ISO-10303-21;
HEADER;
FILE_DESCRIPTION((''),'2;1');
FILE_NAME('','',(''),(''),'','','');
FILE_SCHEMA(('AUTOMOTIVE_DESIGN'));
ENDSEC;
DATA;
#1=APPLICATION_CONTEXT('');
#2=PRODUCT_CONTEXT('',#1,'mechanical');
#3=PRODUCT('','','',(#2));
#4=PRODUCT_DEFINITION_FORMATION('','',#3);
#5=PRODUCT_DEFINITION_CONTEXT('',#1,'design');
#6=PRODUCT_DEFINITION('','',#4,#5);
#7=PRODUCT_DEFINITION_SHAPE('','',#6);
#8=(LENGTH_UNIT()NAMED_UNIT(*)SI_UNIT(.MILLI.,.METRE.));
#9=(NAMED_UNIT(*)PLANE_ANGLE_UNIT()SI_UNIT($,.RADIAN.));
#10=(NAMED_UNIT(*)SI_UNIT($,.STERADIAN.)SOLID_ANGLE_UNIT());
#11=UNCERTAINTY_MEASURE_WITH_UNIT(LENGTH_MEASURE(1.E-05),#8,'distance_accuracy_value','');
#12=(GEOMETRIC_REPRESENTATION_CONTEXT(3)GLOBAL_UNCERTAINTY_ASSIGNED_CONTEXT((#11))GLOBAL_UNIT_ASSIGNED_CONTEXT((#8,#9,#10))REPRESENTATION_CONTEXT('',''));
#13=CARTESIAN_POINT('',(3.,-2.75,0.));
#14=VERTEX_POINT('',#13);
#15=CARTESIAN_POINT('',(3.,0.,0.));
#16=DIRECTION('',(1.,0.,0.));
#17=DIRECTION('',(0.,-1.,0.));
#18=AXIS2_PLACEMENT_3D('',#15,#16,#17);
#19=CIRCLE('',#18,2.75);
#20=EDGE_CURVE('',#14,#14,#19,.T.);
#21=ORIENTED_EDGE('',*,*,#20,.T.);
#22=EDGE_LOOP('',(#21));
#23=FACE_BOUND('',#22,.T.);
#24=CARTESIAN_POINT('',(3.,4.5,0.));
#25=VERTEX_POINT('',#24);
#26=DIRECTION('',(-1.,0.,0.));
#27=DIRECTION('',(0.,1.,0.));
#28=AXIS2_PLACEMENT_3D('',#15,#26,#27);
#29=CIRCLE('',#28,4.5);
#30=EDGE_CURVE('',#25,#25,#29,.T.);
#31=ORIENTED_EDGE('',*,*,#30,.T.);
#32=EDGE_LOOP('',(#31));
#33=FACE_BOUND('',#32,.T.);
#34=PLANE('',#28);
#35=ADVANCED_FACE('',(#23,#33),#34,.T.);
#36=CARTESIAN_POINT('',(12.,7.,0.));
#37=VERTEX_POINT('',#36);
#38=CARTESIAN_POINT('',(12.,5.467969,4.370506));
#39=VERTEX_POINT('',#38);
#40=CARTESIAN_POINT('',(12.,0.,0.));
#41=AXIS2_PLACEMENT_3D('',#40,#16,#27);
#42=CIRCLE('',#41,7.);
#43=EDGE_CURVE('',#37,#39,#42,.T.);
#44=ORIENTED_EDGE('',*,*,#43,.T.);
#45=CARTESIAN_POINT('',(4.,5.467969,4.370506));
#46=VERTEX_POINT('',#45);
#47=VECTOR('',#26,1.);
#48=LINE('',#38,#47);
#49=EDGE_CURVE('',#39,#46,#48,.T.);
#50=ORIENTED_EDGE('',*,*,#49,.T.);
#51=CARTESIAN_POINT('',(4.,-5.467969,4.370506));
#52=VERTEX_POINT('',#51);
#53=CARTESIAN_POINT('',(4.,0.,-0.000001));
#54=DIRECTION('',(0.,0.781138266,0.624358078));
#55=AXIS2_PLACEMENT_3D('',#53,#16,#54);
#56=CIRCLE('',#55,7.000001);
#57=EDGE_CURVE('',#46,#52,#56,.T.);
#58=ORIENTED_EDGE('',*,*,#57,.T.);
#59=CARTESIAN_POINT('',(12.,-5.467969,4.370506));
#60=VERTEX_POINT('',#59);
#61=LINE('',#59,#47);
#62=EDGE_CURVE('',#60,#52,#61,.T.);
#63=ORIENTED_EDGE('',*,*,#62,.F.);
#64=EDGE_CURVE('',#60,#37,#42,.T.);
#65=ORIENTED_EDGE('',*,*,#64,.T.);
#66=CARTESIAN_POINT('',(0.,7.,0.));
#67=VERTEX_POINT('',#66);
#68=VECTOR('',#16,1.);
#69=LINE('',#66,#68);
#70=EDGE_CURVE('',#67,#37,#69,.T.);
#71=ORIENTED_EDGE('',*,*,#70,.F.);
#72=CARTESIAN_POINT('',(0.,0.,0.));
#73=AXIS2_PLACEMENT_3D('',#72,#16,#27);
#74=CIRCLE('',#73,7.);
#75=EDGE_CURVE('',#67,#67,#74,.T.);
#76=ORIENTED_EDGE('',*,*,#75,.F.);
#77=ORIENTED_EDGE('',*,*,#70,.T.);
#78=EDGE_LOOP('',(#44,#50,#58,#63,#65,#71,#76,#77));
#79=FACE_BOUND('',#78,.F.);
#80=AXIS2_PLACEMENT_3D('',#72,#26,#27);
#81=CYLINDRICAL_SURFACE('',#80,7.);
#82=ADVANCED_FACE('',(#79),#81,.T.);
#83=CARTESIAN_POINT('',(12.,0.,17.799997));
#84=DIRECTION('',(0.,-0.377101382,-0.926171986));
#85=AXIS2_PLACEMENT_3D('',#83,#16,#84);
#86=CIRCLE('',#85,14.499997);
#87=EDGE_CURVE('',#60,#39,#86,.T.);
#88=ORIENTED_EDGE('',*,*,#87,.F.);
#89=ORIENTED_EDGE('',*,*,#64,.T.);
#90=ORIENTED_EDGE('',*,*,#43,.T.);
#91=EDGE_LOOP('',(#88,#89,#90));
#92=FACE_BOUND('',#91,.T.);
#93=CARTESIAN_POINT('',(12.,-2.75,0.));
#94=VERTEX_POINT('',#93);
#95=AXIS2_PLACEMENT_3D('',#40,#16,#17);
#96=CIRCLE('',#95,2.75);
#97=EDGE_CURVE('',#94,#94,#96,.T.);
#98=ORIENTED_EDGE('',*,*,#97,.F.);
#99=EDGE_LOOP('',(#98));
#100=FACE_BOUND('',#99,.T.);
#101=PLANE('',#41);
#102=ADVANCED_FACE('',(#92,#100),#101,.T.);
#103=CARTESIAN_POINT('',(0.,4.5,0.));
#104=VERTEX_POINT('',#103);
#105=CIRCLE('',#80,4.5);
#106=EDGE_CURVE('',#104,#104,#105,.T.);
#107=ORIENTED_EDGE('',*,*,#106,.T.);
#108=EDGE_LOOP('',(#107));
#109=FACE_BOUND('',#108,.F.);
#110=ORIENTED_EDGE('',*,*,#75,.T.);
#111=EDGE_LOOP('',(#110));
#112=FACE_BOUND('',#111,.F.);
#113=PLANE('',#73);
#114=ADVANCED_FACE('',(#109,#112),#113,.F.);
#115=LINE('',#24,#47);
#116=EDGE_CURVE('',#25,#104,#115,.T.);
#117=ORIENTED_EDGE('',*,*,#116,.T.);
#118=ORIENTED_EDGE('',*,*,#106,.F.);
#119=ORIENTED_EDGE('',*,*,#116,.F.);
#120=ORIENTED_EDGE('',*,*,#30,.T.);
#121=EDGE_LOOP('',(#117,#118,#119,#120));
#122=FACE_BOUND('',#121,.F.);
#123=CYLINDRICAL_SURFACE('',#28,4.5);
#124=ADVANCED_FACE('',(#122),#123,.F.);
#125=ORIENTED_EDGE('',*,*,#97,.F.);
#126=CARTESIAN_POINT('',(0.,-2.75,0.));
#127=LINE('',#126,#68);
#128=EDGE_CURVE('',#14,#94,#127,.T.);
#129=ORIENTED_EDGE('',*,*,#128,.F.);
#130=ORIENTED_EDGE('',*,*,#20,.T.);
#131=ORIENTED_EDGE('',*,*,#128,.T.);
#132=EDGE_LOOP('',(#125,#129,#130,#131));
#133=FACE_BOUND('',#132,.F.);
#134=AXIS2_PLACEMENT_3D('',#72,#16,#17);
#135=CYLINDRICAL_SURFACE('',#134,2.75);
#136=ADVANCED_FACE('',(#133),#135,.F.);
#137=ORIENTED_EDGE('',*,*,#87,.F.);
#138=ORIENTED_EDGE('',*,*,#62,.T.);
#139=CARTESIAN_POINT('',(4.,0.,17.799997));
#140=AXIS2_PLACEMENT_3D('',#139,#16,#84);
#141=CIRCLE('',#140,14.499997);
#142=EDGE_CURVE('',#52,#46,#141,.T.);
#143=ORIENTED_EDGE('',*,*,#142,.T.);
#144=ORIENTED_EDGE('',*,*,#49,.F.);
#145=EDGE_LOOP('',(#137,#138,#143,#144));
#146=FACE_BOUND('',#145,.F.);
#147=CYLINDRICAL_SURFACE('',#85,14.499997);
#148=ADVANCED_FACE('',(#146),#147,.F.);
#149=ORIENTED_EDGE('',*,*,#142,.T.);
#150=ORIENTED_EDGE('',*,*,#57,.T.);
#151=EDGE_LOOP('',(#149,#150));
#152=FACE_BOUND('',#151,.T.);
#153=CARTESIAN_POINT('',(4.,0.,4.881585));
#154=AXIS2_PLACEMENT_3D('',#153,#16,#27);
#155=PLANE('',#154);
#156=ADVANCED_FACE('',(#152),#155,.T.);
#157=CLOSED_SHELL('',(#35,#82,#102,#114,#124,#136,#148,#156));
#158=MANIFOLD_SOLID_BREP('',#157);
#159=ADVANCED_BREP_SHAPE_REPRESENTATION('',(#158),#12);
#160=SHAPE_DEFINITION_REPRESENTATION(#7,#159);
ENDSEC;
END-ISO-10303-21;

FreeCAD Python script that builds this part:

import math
import FreeCAD as App
import Part
import Sketcher

doc = App.newDocument("Part")
params = doc.addObject("Spreadsheet::Sheet", "Params")
for row, (alias, value) in enumerate([
    ("sketch1_diameter", "14 mm"),
    ("pad1_length", "12 mm"),
    ("sketch2_diameter", "5.5 mm"),
    ("hole_diameter", "5.5 mm"),
    ("hole_cbore_diameter", "9 mm"),
    ("hole_cbore_depth", "3 mm"),
    ("sketch3_radius", "7.000001 mm"),
    ("pocket1_length", "8 mm"),
], start=1):
    params.set(f"A{row}", alias)
    params.set(f"B{row}", "=" + value)
    params.setAlias(f"B{row}", alias)

body = doc.addObject("PartDesign::Body", "Body")

# Sketch on YZ plane
sketch1 = body.newObject("Sketcher::SketchObject", "Sketch")
sketch1.AttachmentSupport = (doc.getObject("YZ_Plane"), [""])
sketch1.MapMode = "FlatFace"
sketch1.addGeometry(Part.Circle(App.Vector(0, 0, 0), App.Vector(0, 0, 1), 7), False)
sketch1.addConstraint([
    Sketcher.Constraint("Coincident", 0, 3, -1, 1),
    Sketcher.Constraint("Diameter", 0, 14.0),
])
sketch1.setExpression("Constraints[1]", "Params.sketch1_diameter")
pad1 = body.newObject("PartDesign::Pad", "Pad")
pad1.Profile = sketch1
pad1.setExpression("Length", "Params.pad1_length")

# Sketch on YZ plane
sketch2 = body.newObject("Sketcher::SketchObject", "Sketch001")
sketch2.AttachmentSupport = (doc.getObject("YZ_Plane"), [""])
sketch2.MapMode = "FlatFace"
sketch2.addGeometry(Part.Circle(App.Vector(0, 0, 0), App.Vector(0, 0, 1), 2.8), False)
sketch2.addConstraint([
    Sketcher.Constraint("Coincident", 0, 3, -1, 1),
    Sketcher.Constraint("Diameter", 0, 5.5),
])
sketch2.setExpression("Constraints[1]", "Params.sketch2_diameter")
doc.recompute()
hole = body.newObject("PartDesign::Hole", "Hole")
hole.Profile = sketch2
hole.ThreadType = "None"
hole.setExpression("Diameter", "Params.hole_diameter")
hole.DepthType = "ThroughAll"
hole.HoleCutType = "Counterbore"
hole.setExpression("HoleCutDiameter", "Params.hole_cbore_diameter")
hole.setExpression("HoleCutDepth", "Params.hole_cbore_depth")
hole.Reversed = True

# Sketch on YZ plane
sketch3 = body.newObject("Sketcher::SketchObject", "Sketch002")
sketch3.AttachmentSupport = (doc.getObject("YZ_Plane"), [""])
sketch3.MapMode = "FlatFace"
sketch3.AttachmentOffset = App.Placement(App.Vector(0, 0, 12), App.Rotation())
sketch3.addGeometry([
    Part.ArcOfCircle(Part.Circle(App.Vector(0, 0, 0), App.Vector(0, 0, 1), 7), math.radians(39), math.radians(141)),
    Part.ArcOfCircle(Part.Circle(App.Vector(0, 18, 0), App.Vector(0, 0, 1), 14), math.radians(-112), math.radians(-68)),
], False)
sketch3.addConstraint([
    Sketcher.Constraint("Coincident", 0, 1, 1, 2),
    Sketcher.Constraint("Coincident", 1, 1, 0, 2),
    Sketcher.Constraint("Coincident", 0, 3, -1, 1),
    Sketcher.Constraint("PointOnObject", 1, 3, -2),
    Sketcher.Constraint("Radius", 0, 7.000001),
    Sketcher.Constraint("DistanceY", 0, 3, 1, 3, 17.799999),
    Sketcher.Constraint("Radius", 1, 14.499997),
])
sketch3.setExpression("Constraints[4]", "Params.sketch3_radius")
pocket1 = body.newObject("PartDesign::Pocket", "Pocket")
pocket1.Profile = sketch3
pocket1.setExpression("Length", "Params.pocket1_length")

doc.recompute()
